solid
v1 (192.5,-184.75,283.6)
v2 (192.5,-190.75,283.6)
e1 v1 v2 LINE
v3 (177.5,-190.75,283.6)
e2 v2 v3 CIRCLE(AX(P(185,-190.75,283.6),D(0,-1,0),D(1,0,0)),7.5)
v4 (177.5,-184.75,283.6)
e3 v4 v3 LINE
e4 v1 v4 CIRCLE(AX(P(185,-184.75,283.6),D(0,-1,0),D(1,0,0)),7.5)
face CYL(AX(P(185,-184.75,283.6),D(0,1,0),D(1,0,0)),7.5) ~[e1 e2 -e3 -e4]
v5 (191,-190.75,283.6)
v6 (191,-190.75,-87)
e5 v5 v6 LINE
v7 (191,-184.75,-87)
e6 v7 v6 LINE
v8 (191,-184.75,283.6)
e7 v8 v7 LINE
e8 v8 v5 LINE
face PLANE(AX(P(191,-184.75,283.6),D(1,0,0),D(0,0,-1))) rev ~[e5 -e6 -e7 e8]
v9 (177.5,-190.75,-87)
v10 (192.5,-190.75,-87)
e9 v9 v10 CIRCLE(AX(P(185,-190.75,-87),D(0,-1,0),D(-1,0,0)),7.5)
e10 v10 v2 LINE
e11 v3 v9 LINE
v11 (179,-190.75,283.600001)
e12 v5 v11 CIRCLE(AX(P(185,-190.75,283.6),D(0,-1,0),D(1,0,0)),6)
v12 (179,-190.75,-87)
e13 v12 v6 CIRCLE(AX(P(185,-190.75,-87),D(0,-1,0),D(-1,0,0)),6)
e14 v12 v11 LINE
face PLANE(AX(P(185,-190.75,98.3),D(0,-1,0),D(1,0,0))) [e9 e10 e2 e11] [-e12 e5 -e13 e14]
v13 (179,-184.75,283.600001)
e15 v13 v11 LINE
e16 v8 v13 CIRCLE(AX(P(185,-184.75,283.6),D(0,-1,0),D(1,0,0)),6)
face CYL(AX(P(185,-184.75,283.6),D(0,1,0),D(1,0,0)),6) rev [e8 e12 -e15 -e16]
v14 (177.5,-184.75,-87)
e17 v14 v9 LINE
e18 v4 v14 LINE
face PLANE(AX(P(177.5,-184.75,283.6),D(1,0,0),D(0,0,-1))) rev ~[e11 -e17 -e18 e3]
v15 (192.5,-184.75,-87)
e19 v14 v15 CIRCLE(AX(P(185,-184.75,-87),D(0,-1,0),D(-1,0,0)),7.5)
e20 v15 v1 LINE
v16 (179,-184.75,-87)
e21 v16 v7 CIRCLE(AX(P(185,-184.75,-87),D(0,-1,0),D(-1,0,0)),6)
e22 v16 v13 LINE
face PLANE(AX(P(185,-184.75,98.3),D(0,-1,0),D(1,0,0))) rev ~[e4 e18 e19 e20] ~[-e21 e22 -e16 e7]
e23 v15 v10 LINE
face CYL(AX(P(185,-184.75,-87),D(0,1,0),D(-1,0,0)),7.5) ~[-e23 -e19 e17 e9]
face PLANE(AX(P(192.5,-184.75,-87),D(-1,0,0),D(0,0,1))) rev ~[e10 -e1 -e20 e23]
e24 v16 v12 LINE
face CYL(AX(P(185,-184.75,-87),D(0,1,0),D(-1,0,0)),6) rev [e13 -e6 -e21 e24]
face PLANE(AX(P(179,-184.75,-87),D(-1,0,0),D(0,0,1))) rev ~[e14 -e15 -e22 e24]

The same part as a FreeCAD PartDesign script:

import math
import FreeCAD as App
import Part
import Sketcher

doc = App.newDocument("Part")
body = doc.addObject("PartDesign::Body", "Body")

sketch1 = body.newObject("Sketcher::SketchObject", "Sketch")
sketch1.AttachmentSupport = (doc.getObject("XZ_Plane"), [""])
sketch1.MapMode = "FlatFace"
sketch1.addGeometry(Part.ArcOfCircle(Part.Circle(App.Vector(0, 370.6, 0), App.Vector(0, 0, 1), 7.5), math.radians(0), math.radians(180)), False)
sketch1.addGeometry(Part.LineSegment(App.Vector(-7.5, 370.6, 0), App.Vector(-7.5, 0, 0)), False)
sketch1.addGeometry(Part.ArcOfCircle(Part.Circle(App.Vector(0, 0, 0), App.Vector(0, 0, 1), 7.5), math.radians(180), math.radians(360)), False)
sketch1.addGeometry(Part.LineSegment(App.Vector(7.5, 0, 0), App.Vector(7.5, 370.6, 0)), False)
sketch1.addGeometry(Part.ArcOfCircle(Part.Circle(App.Vector(0, 0, 0), App.Vector(0, 0, 1), 6), math.radians(180), math.radians(360)), False)
sketch1.addGeometry(Part.LineSegment(App.Vector(-6, 0, 0), App.Vector(-6, 370.600001, 0)), False)
sketch1.addGeometry(Part.ArcOfCircle(Part.Circle(App.Vector(0, 370.6, 0), App.Vector(0, 0, 1), 6), math.radians(0), math.radians(179.99999)), False)
sketch1.addGeometry(Part.LineSegment(App.Vector(6, 370.6, 0), App.Vector(6, 0, 0)), False)
sketch1.addConstraint(Sketcher.Constraint("Tangent", 0, 2, 1, 1))
sketch1.addConstraint(Sketcher.Constraint("Tangent", 1, 2, 2, 1))
sketch1.addConstraint(Sketcher.Constraint("Tangent", 2, 2, 3, 1))
sketch1.addConstraint(Sketcher.Constraint("Tangent", 3, 2, 0, 1))
sketch1.addConstraint(Sketcher.Constraint("Tangent", 4, 1, 5, 1))
sketch1.addConstraint(Sketcher.Constraint("Tangent", 5, 2, 6, 2))
sketch1.addConstraint(Sketcher.Constraint("Tangent", 6, 1, 7, 1))
sketch1.addConstraint(Sketcher.Constraint("Tangent", 7, 2, 4, 2))
sketch1.addConstraint(Sketcher.Constraint("Vertical", 1))
sketch1.addConstraint(Sketcher.Constraint("Vertical", 3))
sketch1.addConstraint(Sketcher.Constraint("Vertical", 5))
sketch1.addConstraint(Sketcher.Constraint("Vertical", 7))
sketch1.addConstraint(Sketcher.Constraint("Coincident", 2, 3, -1, 1))
sketch1.addConstraint(Sketcher.Constraint("Coincident", 4, 3, -1, 1))
sketch1.addConstraint(Sketcher.Constraint("Horizontal", 6, 3, 0, 2))
sketch1.addConstraint(Sketcher.Constraint("Radius", 4, 6.0))
sketch1.addConstraint(Sketcher.Constraint("Radius", 0, 7.5))
sketch1.addConstraint(Sketcher.Constraint("DistanceY", 1, 2, 1, 1, 370.6))
pad1 = body.newObject("PartDesign::Pad", "Pad")
pad1.Profile = sketch1
pad1.Length = 6
body2 = doc.addObject("PartDesign::Body", "Body001")
doc.recompute()

body.Placement = App.Placement(App.Vector(185, -184.75, -87), App.Rotation(App.Vector(0, 0, 1), 0))
boolean = body2.newObject("PartDesign::Boolean", "Boolean")
boolean.Type = "Fuse"
boolean.addObjects([body])

doc.recompute()
